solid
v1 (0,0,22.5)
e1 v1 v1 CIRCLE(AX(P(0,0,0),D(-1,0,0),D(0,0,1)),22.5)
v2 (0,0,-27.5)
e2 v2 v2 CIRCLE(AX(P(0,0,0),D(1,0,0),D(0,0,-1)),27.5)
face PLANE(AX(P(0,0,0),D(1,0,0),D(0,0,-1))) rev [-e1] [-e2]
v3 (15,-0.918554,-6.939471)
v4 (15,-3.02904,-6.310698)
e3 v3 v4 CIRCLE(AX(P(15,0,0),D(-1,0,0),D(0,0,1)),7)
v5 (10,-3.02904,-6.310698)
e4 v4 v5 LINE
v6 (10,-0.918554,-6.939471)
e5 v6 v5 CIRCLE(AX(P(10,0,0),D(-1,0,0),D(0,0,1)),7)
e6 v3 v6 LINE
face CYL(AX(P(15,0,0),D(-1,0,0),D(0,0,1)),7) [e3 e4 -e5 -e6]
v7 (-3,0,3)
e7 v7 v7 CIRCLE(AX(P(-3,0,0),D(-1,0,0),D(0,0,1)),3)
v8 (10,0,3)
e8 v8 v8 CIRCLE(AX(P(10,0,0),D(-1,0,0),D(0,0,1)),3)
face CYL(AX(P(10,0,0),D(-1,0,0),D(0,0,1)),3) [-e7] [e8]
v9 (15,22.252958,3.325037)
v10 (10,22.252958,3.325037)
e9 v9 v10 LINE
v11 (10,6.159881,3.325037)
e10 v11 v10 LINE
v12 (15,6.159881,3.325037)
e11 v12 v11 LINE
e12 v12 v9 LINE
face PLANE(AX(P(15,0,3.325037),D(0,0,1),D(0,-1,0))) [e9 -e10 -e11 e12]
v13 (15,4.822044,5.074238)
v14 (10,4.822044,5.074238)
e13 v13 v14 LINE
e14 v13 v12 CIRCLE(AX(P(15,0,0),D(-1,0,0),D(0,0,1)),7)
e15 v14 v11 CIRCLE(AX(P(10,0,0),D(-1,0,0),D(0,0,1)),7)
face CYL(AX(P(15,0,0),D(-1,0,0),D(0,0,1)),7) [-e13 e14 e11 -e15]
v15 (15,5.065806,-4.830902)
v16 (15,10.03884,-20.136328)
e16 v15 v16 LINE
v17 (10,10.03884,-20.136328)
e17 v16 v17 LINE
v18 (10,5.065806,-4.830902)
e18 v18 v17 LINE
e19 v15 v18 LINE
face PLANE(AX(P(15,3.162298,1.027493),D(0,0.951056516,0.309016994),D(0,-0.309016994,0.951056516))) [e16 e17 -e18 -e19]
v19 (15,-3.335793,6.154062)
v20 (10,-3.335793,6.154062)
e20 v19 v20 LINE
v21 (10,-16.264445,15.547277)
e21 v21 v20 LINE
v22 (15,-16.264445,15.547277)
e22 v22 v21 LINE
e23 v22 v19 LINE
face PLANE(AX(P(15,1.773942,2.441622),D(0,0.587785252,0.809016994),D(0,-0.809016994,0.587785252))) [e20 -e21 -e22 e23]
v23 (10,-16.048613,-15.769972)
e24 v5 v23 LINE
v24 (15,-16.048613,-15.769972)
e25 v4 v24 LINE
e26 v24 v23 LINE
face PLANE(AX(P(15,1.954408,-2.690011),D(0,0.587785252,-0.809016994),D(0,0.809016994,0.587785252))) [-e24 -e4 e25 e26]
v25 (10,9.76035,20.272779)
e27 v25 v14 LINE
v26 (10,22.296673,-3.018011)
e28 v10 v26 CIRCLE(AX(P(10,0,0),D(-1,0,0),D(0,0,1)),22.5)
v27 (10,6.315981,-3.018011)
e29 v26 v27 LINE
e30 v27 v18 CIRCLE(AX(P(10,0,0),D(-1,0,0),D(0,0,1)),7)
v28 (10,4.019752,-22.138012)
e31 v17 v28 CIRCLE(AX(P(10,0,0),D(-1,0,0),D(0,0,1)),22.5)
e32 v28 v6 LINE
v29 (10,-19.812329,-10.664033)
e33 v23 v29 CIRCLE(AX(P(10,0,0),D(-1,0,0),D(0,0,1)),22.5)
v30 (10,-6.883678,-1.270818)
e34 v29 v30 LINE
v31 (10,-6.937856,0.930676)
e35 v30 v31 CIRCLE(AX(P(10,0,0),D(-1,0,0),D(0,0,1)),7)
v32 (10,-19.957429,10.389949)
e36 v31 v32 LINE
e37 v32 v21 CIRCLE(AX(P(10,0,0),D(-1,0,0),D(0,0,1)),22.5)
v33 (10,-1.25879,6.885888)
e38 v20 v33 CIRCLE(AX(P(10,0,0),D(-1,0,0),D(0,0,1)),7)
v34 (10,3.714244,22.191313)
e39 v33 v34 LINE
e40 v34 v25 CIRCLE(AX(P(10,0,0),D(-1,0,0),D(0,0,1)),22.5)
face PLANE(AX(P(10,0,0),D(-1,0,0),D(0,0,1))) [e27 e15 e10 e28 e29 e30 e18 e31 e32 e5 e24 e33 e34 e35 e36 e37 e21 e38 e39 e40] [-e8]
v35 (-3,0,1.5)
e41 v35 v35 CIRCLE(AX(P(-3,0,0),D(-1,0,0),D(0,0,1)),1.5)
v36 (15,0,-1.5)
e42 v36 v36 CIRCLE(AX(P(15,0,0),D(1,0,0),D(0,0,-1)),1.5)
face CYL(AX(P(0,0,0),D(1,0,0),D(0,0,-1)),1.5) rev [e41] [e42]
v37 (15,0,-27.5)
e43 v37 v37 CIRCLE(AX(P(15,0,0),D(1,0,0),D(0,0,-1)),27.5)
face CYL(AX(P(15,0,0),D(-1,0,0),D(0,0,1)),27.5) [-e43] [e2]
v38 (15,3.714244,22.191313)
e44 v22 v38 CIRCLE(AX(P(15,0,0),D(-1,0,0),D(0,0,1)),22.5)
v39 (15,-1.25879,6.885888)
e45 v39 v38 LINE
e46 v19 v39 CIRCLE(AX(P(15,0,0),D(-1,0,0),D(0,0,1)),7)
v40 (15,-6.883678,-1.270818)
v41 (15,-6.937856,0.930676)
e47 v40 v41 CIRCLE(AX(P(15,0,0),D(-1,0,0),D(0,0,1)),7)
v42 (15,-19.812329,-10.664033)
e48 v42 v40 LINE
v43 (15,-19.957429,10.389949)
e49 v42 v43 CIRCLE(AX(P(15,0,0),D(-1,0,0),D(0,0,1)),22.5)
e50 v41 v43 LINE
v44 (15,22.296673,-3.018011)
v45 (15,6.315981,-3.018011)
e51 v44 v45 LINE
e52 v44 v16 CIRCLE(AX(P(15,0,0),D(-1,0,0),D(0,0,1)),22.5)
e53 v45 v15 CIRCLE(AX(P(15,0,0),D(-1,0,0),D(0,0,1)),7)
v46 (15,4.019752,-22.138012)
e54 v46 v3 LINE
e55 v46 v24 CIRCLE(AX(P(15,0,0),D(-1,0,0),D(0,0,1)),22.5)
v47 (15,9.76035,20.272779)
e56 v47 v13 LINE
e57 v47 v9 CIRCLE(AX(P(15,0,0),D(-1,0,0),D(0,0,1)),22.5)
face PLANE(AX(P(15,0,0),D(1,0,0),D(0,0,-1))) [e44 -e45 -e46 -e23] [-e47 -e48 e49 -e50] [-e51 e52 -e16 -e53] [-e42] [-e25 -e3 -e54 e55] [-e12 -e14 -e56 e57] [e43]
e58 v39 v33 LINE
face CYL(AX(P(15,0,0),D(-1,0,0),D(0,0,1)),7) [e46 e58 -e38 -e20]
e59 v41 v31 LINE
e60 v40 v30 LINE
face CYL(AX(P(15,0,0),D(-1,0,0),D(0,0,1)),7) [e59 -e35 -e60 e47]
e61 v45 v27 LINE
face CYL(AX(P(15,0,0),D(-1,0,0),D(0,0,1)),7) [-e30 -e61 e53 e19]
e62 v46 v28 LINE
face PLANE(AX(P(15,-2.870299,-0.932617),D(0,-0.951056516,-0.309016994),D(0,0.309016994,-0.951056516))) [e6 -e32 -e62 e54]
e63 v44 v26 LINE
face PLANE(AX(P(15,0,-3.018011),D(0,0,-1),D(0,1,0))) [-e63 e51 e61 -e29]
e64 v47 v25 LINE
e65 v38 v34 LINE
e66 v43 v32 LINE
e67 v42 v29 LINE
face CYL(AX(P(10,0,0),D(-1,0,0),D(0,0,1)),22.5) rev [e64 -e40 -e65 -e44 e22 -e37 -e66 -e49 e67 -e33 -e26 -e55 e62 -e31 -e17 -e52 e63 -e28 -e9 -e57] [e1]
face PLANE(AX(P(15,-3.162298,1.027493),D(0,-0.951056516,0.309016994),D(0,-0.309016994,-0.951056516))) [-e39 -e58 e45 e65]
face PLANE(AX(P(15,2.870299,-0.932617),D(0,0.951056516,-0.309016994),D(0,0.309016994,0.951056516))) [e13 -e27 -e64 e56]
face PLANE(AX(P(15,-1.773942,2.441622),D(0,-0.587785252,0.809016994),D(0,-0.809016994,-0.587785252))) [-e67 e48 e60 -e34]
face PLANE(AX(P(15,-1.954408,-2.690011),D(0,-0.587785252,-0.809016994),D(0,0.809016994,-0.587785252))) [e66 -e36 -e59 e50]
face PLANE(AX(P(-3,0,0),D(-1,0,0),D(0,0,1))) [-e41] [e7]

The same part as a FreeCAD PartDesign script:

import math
import FreeCAD as App
import Part
import Sketcher

V = App.Vector
Q = App.Units.Quantity

doc = App.newDocument("Part")
body = doc.addObject("PartDesign::Body", "Body")

# Sketch on YZ plane
sketch1 = doc.addObject("Sketcher::SketchObject", "Sketch")
body.addObject(sketch1)
sketch1.AttachmentSupport = (doc.YZ_Plane, [""])
sketch1.MapMode = "FlatFace"
sketch1.addGeometry(Part.Circle(V(0, 0, 0), V(0, 0, 1), 28), False)
sketch1.addConstraint(Sketcher.Constraint("Coincident", 0, 3, -1, 1))
sketch1.addConstraint(Sketcher.Constraint("Diameter", 0, Q("55 mm")))
pad1 = doc.addObject("PartDesign::Pad", "Pad")
body.addObject(pad1)
pad1.Profile = sketch1
pad1.Length = 15

# Sketch on YZ plane
sketch2 = doc.addObject("Sketcher::SketchObject", "Sketch001")
body.addObject(sketch2)
sketch2.AttachmentSupport = (doc.YZ_Plane, [""])
sketch2.MapMode = "FlatFace"
sketch2.AttachmentOffset = App.Placement(V(0, 0, 15), App.Rotation())
sketch2.addGeometry(Part.Circle(V(0, 0, 0), V(0, 0, 1), 1.5), False)
sketch2.addConstraint(Sketcher.Constraint("Coincident", 0, 3, -1, 1))
sketch2.addConstraint(Sketcher.Constraint("Diameter", 0, Q("3 mm")))
pocket1 = doc.addObject("PartDesign::Pocket", "Pocket")
body.addObject(pocket1)
pocket1.Profile = sketch2
pocket1.Type = "ThroughAll"

# Sketch on YZ plane
sketch3 = doc.addObject("Sketcher::SketchObject", "Sketch002")
body.addObject(sketch3)
sketch3.AttachmentSupport = (doc.YZ_Plane, [""])
sketch3.MapMode = "FlatFace"
sketch3.addGeometry(Part.Circle(V(0, 0, 0), V(0, 0, 1), 22.5), False)
sketch3.addGeometry(Part.Circle(V(0, 0, 0), V(0, 0, 1), 3), False)
sketch3.addConstraint(Sketcher.Constraint("Coincident", 0, 3, -1, 1))
sketch3.addConstraint(Sketcher.Constraint("Coincident", 1, 3, -1, 1))
sketch3.addConstraint(Sketcher.Constraint("Diameter", 0, Q("45 mm")))
sketch3.addConstraint(Sketcher.Constraint("Diameter", 1, Q("6 mm")))
pocket2 = doc.addObject("PartDesign::Pocket", "Pocket001")
body.addObject(pocket2)
pocket2.Profile = sketch3
pocket2.Length = 10
pocket2.Reversed = True

# Sketch on YZ plane
sketch4 = doc.addObject("Sketcher::SketchObject", "Sketch003")
body.addObject(sketch4)
sketch4.AttachmentSupport = (doc.YZ_Plane, [""])
sketch4.MapMode = "FlatFace"
sketch4.addGeometry(Part.Circle(V(0, 0, 0), V(0, 0, 1), 3), False)
sketch4.addGeometry(Part.Circle(V(0, 0, 0), V(0, 0, 1), 1.5), False)
sketch4.addConstraint(Sketcher.Constraint("Coincident", 0, 3, -1, 1))
sketch4.addConstraint(Sketcher.Constraint("Coincident", 1, 3, -1, 1))
sketch4.addConstraint(Sketcher.Constraint("Diameter", 0, Q("6 mm")))
sketch4.addConstraint(Sketcher.Constraint("Diameter", 1, Q("3 mm")))
pad2 = doc.addObject("PartDesign::Pad", "Pad001")
body.addObject(pad2)
pad2.Profile = sketch4
pad2.Length = 3
pad2.Reversed = True

# Sketch on YZ plane
sketch5 = doc.addObject("Sketcher::SketchObject", "Sketch004")
body.addObject(sketch5)
sketch5.AttachmentSupport = (doc.YZ_Plane, [""])
sketch5.MapMode = "FlatFace"
sketch5.AttachmentOffset = App.Placement(V(0, 0, 10), App.Rotation())
sketch5.addGeometry(Part.LineSegment(V(4.8, 5.1, 0), V(9.8, 20.3, 0)), False)
sketch5.addGeometry(Part.ArcOfCircle(Part.Circle(V(0, 0, 0), V(0, 0, 1), 22.5), math.radians(8), math.radians(64)), False)
sketch5.addGeometry(Part.LineSegment(V(22.3, 3.3, 0), V(6.2, 3.3, 0)), False)
sketch5.addGeometry(Part.ArcOfCircle(Part.Circle(V(0, 0, 0), V(0, 0, 1), 7), math.radians(28.36), math.radians(46.46)), False)
sketch5.addGeometry(Part.LineSegment(V(6.3, -3, 0), V(22.3, -3, 0)), False)
sketch5.addGeometry(Part.ArcOfCircle(Part.Circle(V(0, 0, 0), V(0, 0, 1), 22.5), math.radians(-64), math.radians(-8)), False)
sketch5.addGeometry(Part.LineSegment(V(10, -20.1, 0), V(5.1, -4.8, 0)), False)
sketch5.addGeometry(Part.ArcOfCircle(Part.Circle(V(0, 0, 0), V(0, 0, 1), 7), math.radians(-43.64), math.radians(-25.54)), False)
sketch5.addGeometry(Part.LineSegment(V(-0.9, -6.9, 0), V(4, -22.1, 0)), False)
sketch5.addGeometry(Part.ArcOfCircle(Part.Circle(V(0, 0, 0), V(0, 0, 1), 22.5), math.radians(-136), math.radians(-80)), False)
sketch5.addGeometry(Part.LineSegment(V(-16, -15.8, 0), V(-3, -6.3, 0)), False)
sketch5.addGeometry(Part.ArcOfCircle(Part.Circle(V(0, 0, 0), V(0, 0, 1), 7), math.radians(-115.64), math.radians(-97.54)), False)
sketch5.addGeometry(Part.LineSegment(V(-20, 10.4, 0), V(-6.9, 0.9, 0)), False)
sketch5.addGeometry(Part.ArcOfCircle(Part.Circle(V(0, 0, 0), V(0, 0, 1), 7), math.radians(172.36), math.radians(190.46)), False)
sketch5.addGeometry(Part.LineSegment(V(-6.9, -1.3, 0), V(-19.8, -10.7, 0)), False)
sketch5.addGeometry(Part.ArcOfCircle(Part.Circle(V(0, 0, 0), V(0, 0, 1), 22.5), math.radians(152), math.radians(208)), False)
sketch5.addGeometry(Part.ArcOfCircle(Part.Circle(V(0, 0, 0), V(0, 0, 1), 22.5), math.radians(80.5), math.radians(90)), False)
sketch5.addGeometry(Part.LineSegment(V(3.7, 22.2, 0), V(-1.3, 6.9, 0)), False)
sketch5.addGeometry(Part.ArcOfCircle(Part.Circle(V(0, 0, 0), V(0, 0, 1), 7), math.radians(100.36), math.radians(118.46)), False)
sketch5.addGeometry(Part.LineSegment(V(-3.3, 6.2, 0), V(-16.3, 15.5, 0)), False)
sketch5.addGeometry(Part.ArcOfCircle(Part.Circle(V(0, 0, 0), V(0, 0, 1), 22.5), math.radians(90), math.radians(136)), False)
sketch5.addConstraint(Sketcher.Constraint("Coincident", 0, 2, 1, 2))
sketch5.addConstraint(Sketcher.Constraint("Coincident", 1, 1, 2, 1))
sketch5.addConstraint(Sketcher.Constraint("Coincident", 2, 2, 3, 1))
sketch5.addConstraint(Sketcher.Constraint("Coincident", 3, 2, 0, 1))
sketch5.addConstraint(Sketcher.Constraint("Coincident", 4, 2, 5, 2))
sketch5.addConstraint(Sketcher.Constraint("Coincident", 5, 1, 6, 1))
sketch5.addConstraint(Sketcher.Constraint("Coincident", 6, 2, 7, 1))
sketch5.addConstraint(Sketcher.Constraint("Coincident", 7, 2, 4, 1))
sketch5.addConstraint(Sketcher.Constraint("Coincident", 8, 2, 9, 2))
sketch5.addConstraint(Sketcher.Constraint("Coincident", 9, 1, 10, 1))
sketch5.addConstraint(Sketcher.Constraint("Coincident", 10, 2, 11, 1))
sketch5.addConstraint(Sketcher.Constraint("Coincident", 11, 2, 8, 1))
sketch5.addConstraint(Sketcher.Constraint("Coincident", 12, 2, 13, 1))
sketch5.addConstraint(Sketcher.Constraint("Coincident", 13, 2, 14, 1))
sketch5.addConstraint(Sketcher.Constraint("Coincident", 14, 2, 15, 2))
sketch5.addConstraint(Sketcher.Constraint("Coincident", 15, 1, 12, 1))
sketch5.addConstraint(Sketcher.Constraint("Coincident", 16, 1, 17, 1))
sketch5.addConstraint(Sketcher.Constraint("Coincident", 17, 2, 18, 1))
sketch5.addConstraint(Sketcher.Constraint("Coincident", 18, 2, 19, 1))
sketch5.addConstraint(Sketcher.Constraint("Coincident", 19, 2, 20, 2))
sketch5.addConstraint(Sketcher.Constraint("Tangent", 20, 1, 16, 2))
sketch5.addConstraint(Sketcher.Constraint("Horizontal", 2))
sketch5.addConstraint(Sketcher.Constraint("Horizontal", 4))
sketch5.addConstraint(Sketcher.Constraint("Coincident", 1, 3, -1, 1))
sketch5.addConstraint(Sketcher.Constraint("Coincident", 3, 3, -1, 1))
sketch5.addConstraint(Sketcher.Constraint("Coincident", 5, 3, -1, 1))
sketch5.addConstraint(Sketcher.Constraint("Coincident", 7, 3, -1, 1))
sketch5.addConstraint(Sketcher.Constraint("Coincident", 9, 3, -1, 1))
sketch5.addConstraint(Sketcher.Constraint("Coincident", 11, 3, -1, 1))
sketch5.addConstraint(Sketcher.Constraint("Coincident", 13, 3, -1, 1))
sketch5.addConstraint(Sketcher.Constraint("Coincident", 15, 3, -1, 1))
sketch5.addConstraint(Sketcher.Constraint("Coincident", 16, 3, -1, 1))
sketch5.addConstraint(Sketcher.Constraint("Coincident", 18, 3, -1, 1))
sketch5.addConstraint(Sketcher.Constraint("Equal", 1, 5))
sketch5.addConstraint(Sketcher.Constraint("Equal", 3, 7))
sketch5.addConstraint(Sketcher.Constraint("Equal", 5, 9))
sketch5.addConstraint(Sketcher.Constraint("Equal", 7, 11))
sketch5.addConstraint(Sketcher.Constraint("Equal", 11, 13))
sketch5.addConstraint(Sketcher.Constraint("Equal", 9, 15))
sketch5.addConstraint(Sketcher.Constraint("Equal", 15, 16))
sketch5.addConstraint(Sketcher.Constraint("Equal", 13, 18))
sketch5.addConstraint(Sketcher.Constraint("Equal", 16, 20))
sketch5.addConstraint(Sketcher.Constraint("PointOnObject", 20, 1, -2))
sketch5.addConstraint(Sketcher.Constraint("Parallel", 6, 8))
sketch5.addConstraint(Sketcher.Constraint("Parallel", 10, 14))
sketch5.addConstraint(Sketcher.Constraint("Parallel", 0, 17))
sketch5.addConstraint(Sketcher.Constraint("Parallel", 12, 19))
sketch5.addConstraint(Sketcher.Constraint("Equal", 0, 8))
sketch5.addConstraint(Sketcher.Constraint("Equal", 6, 10))
sketch5.addConstraint(Sketcher.Constraint("Equal", 10, 12))
sketch5.addConstraint(Sketcher.Constraint("Equal", 8, 14))
sketch5.addConstraint(Sketcher.Constraint("Equal", 12, 17))
sketch5.addConstraint(Sketcher.Constraint("Equal", 14, 19))
sketch5.addConstraint(Sketcher.Constraint("Radius", 3, Q("7 mm")))
sketch5.addConstraint(Sketcher.Constraint("Radius", 1, Q("22.5 mm")))
sketch5.addConstraint(Sketcher.Constraint("Angle", 0, Q("72 deg")))
sketch5.addConstraint(Sketcher.Constraint("Angle", 6, Q("108 deg")))
sketch5.addConstraint(Sketcher.Constraint("Angle", 10, Q("36 deg")))
sketch5.addConstraint(Sketcher.Constraint("Angle", 12, Q("-36 deg")))
sketch5.addConstraint(Sketcher.Constraint("DistanceY", 8, 2, 7, 2, Q("19.120002 mm")))
sketch5.addConstraint(Sketcher.Constraint("DistanceY", 6, 2, -1, 1, Q("4.830902 mm")))
sketch5.addConstraint(Sketcher.Constraint("DistanceY", 2, 2, 3, 2, Q("1.749201 mm")))
sketch5.addConstraint(Sketcher.Constraint("DistanceX", 2, 2, 7, 2, Q("0.1561 mm")))
pocket3 = doc.addObject("PartDesign::Pocket", "Pocket002")
body.addObject(pocket3)
pocket3.Profile = sketch5
pocket3.Type = "ThroughAll"
pocket3.Reversed = True

doc.recompute()
